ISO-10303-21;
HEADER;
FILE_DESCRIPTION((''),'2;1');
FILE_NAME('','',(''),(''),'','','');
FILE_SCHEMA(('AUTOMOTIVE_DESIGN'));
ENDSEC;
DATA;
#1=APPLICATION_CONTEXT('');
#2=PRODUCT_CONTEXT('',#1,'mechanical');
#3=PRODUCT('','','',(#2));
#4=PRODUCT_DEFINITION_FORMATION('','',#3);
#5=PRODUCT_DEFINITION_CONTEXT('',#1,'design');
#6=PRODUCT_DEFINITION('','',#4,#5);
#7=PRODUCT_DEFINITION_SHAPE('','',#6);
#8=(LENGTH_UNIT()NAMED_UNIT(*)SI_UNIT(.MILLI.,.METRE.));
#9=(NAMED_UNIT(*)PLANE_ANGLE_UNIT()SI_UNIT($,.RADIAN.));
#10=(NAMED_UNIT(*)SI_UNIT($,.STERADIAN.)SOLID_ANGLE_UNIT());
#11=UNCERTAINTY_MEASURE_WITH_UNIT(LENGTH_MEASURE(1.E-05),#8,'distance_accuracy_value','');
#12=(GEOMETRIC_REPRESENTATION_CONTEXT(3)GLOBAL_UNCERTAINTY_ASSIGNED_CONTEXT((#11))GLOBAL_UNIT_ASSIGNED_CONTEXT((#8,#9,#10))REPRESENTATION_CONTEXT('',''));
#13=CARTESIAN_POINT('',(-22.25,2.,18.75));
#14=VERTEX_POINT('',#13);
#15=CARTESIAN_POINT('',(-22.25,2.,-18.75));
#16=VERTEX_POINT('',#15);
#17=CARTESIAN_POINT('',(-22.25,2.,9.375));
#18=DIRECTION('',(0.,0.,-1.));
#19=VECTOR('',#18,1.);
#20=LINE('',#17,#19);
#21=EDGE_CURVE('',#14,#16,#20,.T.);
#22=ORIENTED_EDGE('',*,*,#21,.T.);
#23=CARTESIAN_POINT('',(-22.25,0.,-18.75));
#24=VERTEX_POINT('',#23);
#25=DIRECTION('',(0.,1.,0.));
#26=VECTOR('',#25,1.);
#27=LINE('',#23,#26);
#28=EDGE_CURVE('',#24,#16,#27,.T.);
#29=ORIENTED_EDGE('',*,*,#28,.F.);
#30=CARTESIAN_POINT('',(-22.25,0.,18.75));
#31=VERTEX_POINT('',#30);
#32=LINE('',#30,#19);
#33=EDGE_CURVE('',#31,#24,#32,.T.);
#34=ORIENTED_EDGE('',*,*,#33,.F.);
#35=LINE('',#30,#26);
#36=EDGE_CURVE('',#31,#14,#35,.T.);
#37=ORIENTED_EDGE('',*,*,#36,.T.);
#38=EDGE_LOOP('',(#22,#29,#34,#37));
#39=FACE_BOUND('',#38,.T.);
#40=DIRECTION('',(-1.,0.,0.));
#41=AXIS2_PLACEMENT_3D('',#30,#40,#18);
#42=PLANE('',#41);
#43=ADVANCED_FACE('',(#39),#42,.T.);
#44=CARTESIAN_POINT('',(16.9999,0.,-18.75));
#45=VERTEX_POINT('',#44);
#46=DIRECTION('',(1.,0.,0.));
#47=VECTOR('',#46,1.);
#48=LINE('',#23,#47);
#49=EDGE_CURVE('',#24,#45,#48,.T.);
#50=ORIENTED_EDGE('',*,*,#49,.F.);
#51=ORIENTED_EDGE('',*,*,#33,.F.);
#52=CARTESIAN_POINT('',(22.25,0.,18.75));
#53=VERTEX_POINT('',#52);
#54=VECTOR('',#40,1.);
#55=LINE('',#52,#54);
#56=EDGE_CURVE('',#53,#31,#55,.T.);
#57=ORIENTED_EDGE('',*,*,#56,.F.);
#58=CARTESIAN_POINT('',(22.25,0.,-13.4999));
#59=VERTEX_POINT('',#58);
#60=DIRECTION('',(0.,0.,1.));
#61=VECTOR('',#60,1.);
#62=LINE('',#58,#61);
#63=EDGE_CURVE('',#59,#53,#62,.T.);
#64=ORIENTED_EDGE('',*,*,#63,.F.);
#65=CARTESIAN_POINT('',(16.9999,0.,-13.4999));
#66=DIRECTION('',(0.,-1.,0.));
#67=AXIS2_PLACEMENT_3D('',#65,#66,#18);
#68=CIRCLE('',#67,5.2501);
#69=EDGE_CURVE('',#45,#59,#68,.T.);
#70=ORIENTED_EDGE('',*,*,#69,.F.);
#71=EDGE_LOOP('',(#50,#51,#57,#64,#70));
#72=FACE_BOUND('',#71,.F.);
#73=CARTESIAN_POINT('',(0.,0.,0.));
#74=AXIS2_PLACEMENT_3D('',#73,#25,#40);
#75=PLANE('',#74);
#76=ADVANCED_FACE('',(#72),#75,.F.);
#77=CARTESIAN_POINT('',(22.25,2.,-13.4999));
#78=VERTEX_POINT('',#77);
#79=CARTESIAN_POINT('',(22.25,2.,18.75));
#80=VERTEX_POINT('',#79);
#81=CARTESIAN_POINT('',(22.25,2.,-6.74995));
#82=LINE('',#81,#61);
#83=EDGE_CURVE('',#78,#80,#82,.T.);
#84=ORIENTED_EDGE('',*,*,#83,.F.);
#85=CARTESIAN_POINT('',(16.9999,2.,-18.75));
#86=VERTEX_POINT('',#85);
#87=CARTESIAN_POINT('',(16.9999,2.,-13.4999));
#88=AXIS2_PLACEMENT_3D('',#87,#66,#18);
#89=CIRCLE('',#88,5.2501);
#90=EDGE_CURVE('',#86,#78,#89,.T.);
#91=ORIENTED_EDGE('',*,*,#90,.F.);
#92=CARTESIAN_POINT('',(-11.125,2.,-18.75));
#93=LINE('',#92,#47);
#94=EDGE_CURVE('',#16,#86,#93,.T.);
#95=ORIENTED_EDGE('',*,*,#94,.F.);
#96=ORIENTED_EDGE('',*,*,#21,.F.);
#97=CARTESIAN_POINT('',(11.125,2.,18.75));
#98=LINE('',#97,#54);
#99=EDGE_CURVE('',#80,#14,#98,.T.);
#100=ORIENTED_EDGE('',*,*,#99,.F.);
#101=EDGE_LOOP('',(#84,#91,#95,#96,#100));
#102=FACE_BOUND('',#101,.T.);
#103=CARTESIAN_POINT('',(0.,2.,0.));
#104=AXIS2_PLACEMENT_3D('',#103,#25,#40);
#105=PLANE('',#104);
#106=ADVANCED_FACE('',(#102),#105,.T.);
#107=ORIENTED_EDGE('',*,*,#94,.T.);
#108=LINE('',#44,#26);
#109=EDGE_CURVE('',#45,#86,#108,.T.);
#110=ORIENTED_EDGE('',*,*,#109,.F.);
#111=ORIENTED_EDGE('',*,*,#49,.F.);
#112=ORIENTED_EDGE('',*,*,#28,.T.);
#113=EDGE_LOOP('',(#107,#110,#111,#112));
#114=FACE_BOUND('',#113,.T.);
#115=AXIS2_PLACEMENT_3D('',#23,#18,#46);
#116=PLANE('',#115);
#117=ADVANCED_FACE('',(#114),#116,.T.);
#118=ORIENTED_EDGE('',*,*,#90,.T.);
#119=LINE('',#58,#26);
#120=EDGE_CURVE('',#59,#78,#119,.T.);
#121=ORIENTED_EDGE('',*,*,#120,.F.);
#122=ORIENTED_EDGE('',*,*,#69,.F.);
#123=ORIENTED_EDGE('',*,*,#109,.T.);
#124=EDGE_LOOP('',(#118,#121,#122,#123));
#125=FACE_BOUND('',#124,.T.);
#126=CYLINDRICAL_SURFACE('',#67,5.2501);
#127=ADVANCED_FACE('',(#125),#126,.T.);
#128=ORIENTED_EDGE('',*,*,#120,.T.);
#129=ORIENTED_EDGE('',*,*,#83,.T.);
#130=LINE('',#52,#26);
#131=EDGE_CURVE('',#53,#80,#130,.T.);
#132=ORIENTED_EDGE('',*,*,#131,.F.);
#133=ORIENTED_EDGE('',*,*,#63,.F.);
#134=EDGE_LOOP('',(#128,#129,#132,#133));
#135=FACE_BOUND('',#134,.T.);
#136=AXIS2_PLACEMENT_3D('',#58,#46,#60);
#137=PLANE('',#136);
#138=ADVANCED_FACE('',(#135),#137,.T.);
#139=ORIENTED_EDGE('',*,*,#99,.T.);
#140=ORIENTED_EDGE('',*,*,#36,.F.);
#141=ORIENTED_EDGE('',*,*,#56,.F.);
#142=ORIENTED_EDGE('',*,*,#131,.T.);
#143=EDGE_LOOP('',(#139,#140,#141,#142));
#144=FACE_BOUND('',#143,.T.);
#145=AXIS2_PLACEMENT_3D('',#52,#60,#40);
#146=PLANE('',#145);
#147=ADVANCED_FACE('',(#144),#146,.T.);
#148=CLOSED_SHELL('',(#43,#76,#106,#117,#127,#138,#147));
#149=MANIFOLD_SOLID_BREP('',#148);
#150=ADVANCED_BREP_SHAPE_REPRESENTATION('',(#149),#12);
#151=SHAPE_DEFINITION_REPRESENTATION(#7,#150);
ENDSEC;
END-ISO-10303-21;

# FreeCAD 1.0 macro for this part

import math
import FreeCAD as App
import Part
import Sketcher

V = App.Vector


def add_polygon(sketch, points):
    """Adds a closed chain of lines whose ends are joined by coincident constraints."""
    first, n = sketch.GeometryCount, len(points)
    for a, b in zip(points, points[1:] + points[:1]):
        sketch.addGeometry(Part.LineSegment(App.Vector(*a, 0), App.Vector(*b, 0)), False)
    for i in range(n):
        sketch.addConstraint(Sketcher.Constraint("Coincident", first + i, 2, first + (i + 1) % n, 1))

doc = App.newDocument("Part")
body = doc.addObject("PartDesign::Body", "Body")

# Sketch on XZ plane
sketch1 = body.newObject("Sketcher::SketchObject", "Sketch")
sketch1.AttachmentSupport = (doc.getObject("XZ_Plane"), [""])
sketch1.MapMode = "FlatFace"
add_polygon(sketch1, [(-25, 20), (25, 20), (25, -20), (-25, -20)])  # lines 0-3
sketch1.addConstraint([
    Sketcher.Constraint("Horizontal", 0),
    Sketcher.Constraint("Vertical", 1),
    Sketcher.Constraint("Horizontal", 2),
    Sketcher.Constraint("Vertical", 3),
    Sketcher.Constraint("Symmetric", 0, 2, 2, 2, -1, 1),
    Sketcher.Constraint("DistanceX", 0, 1, 0, 2, 50.0),
    Sketcher.Constraint("DistanceY", 1, 2, 1, 1, 40.0),
])
pad1 = body.newObject("PartDesign::Pad", "Pad")
pad1.Profile = sketch1
pad1.Length = 2
pad1.Reversed = True

# Sketch on XZ plane
sketch2 = body.newObject("Sketcher::SketchObject", "Sketch001")
sketch2.AttachmentSupport = (doc.getObject("XZ_Plane"), [""])
sketch2.MapMode = "FlatFace"
sketch2.addGeometry([
    Part.LineSegment(V(-30, -27, 0), V(17, -27, 0)),  # 0
    Part.ArcOfCircle(Part.Circle(V(17, -13, 0), V(0, 0, 1), 13), math.radians(-90), math.radians(0)),  # 1
    Part.LineSegment(V(30, -13, 0), V(30, 27, 0)),  # 2
    Part.LineSegment(V(30, 27, 0), V(-30, 27, 0)),  # 3
    Part.LineSegment(V(-30, 27, 0), V(-30, -27, 0)),  # 4
    Part.LineSegment(V(17, -19, 0), V(-22, -19, 0)),  # 5
    Part.LineSegment(V(-22, -19, 0), V(-22, 19, 0)),  # 6
    Part.LineSegment(V(-22, 19, 0), V(22, 19, 0)),  # 7
    Part.LineSegment(V(22, 19, 0), V(22, -13, 0)),  # 8
    Part.ArcOfCircle(Part.Circle(V(17, -13, 0), V(0, 0, 1), 5), math.radians(-90), math.radians(0)),  # 9
], False)
sketch2.addConstraint([
    Sketcher.Constraint("Tangent", 0, 2, 1, 1),
    Sketcher.Constraint("Tangent", 1, 2, 2, 1),
    Sketcher.Constraint("Coincident", 2, 2, 3, 1),
    Sketcher.Constraint("Coincident", 3, 2, 4, 1),
    Sketcher.Constraint("Coincident", 4, 2, 0, 1),
    Sketcher.Constraint("Coincident", 5, 2, 6, 1),
    Sketcher.Constraint("Coincident", 6, 2, 7, 1),
    Sketcher.Constraint("Coincident", 7, 2, 8, 1),
    Sketcher.Constraint("Tangent", 8, 2, 9, 2),
    Sketcher.Constraint("Tangent", 9, 1, 5, 1),
    Sketcher.Constraint("Horizontal", 0),
    Sketcher.Constraint("Vertical", 2),
    Sketcher.Constraint("Horizontal", 3),
    Sketcher.Constraint("Vertical", 4),
    Sketcher.Constraint("Horizontal", 5),
    Sketcher.Constraint("Vertical", 6),
    Sketcher.Constraint("Horizontal", 7),
    Sketcher.Constraint("Vertical", 8),
    Sketcher.Constraint("Coincident", 9, 3, 1, 3),
    Sketcher.Constraint("Symmetric", 2, 2, 4, 2, -1, 1),
    Sketcher.Constraint("Symmetric", 5, 2, 7, 2, -1, 1),
    Sketcher.Constraint("DistanceX", 4, 2, 5, 2, 8.0),
    Sketcher.Constraint("Radius", 1, 13.25),
    Sketcher.Constraint("DistanceX", 3, 2, 3, 1, 60.5),
    Sketcher.Constraint("DistanceY", 4, 2, 4, 1, 53.5),
])
pocket1 = body.newObject("PartDesign::Pocket", "Pocket")
pocket1.Profile = sketch2
pocket1.Type = "UpToFirst"

doc.recompute()
